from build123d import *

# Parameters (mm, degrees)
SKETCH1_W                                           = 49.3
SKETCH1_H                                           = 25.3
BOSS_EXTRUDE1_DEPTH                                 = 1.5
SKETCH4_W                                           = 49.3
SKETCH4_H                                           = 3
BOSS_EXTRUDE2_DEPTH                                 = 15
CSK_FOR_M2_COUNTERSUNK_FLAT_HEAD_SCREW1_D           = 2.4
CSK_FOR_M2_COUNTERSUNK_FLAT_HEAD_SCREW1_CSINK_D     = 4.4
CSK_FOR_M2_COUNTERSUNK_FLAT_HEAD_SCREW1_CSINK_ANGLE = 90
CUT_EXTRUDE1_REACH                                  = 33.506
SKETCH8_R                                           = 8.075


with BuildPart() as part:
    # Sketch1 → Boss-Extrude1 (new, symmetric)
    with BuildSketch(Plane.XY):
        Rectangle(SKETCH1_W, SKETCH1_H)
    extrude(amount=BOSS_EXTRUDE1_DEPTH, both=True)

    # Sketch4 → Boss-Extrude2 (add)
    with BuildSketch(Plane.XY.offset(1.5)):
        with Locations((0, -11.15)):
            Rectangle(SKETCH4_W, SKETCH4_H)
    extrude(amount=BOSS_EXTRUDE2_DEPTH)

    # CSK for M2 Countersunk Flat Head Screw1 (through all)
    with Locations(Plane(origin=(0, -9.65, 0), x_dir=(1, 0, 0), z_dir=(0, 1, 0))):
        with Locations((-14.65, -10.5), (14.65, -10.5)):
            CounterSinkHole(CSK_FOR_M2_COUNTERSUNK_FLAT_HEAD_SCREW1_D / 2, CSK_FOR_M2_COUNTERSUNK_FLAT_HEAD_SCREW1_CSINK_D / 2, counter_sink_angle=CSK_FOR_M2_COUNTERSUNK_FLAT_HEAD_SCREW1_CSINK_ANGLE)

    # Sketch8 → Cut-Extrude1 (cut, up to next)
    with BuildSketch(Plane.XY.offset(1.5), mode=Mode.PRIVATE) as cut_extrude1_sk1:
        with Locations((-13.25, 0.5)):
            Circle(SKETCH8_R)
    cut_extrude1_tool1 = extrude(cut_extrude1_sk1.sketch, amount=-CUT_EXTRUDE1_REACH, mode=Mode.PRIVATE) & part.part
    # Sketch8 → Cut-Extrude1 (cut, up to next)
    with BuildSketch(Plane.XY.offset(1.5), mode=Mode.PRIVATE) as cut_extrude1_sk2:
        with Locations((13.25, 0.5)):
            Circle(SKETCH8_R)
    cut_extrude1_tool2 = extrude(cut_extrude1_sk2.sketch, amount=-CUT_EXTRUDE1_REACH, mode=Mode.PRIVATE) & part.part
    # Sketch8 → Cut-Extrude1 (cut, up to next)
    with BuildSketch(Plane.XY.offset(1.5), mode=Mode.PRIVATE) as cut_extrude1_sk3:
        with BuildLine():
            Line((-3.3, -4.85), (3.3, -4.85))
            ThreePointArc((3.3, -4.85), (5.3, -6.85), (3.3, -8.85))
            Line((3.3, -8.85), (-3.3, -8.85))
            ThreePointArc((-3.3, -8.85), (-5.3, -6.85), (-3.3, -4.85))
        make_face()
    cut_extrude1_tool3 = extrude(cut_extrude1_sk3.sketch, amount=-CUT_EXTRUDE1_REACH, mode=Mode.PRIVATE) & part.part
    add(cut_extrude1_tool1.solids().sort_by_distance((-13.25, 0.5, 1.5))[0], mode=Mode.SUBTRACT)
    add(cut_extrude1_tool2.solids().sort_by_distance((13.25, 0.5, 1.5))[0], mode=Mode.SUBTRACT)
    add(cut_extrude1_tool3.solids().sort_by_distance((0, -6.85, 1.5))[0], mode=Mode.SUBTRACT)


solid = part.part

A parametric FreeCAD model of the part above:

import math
import FreeCAD as App
import Part
import Sketcher
from FreeCAD import Vector


def add_polygon(sketch, points):
    """Adds a closed chain of lines whose ends are joined by coincident constraints."""
    first, n = sketch.GeometryCount, len(points)
    for a, b in zip(points, points[1:] + points[:1]):
        sketch.addGeometry(Part.LineSegment(App.Vector(*a, 0), App.Vector(*b, 0)), False)
    for i in range(n):
        sketch.addConstraint(Sketcher.Constraint("Coincident", first + i, 2, first + (i + 1) % n, 1))

doc = App.newDocument("Part")
body = doc.addObject("PartDesign::Body", "Body")

sketch1 = doc.addObject("Sketcher::SketchObject", "Sketch")
body.addObject(sketch1)
sketch1.AttachmentSupport = (doc.XY_Plane, [""])
sketch1.MapMode = "FlatFace"
add_polygon(sketch1, [(-25, 13), (-25, -13), (25, -13), (25, 13)])
sketch1.addConstraint([
    Sketcher.Constraint("Vertical", 0),
    Sketcher.Constraint("Horizontal", 1),
    Sketcher.Constraint("Vertical", 2),
    Sketcher.Constraint("Horizontal", 3),
    Sketcher.Constraint("Symmetric", 0, 2, 2, 2, -1, 1),
    Sketcher.Constraint("DistanceX", 1, 1, 1, 2, 49.3),
    Sketcher.Constraint("DistanceY", 0, 2, 0, 1, 25.3),
])
pad1 = doc.addObject("PartDesign::Pad", "Pad")
body.addObject(pad1)
pad1.Profile = sketch1
pad1.Length = 3
pad1.Midplane = True

sketch2 = doc.addObject("Sketcher::SketchObject", "Sketch001")
body.addObject(sketch2)
sketch2.AttachmentSupport = (doc.XY_Plane, [""])
sketch2.MapMode = "FlatFace"
sketch2.AttachmentOffset = App.Placement(Vector(0, 0, 1.5), App.Rotation())
add_polygon(sketch2, [(-24.6, -9.7), (-24.6, -12.7), (24.6, -12.7), (24.6, -9.7)])
sketch2.addConstraint([
    Sketcher.Constraint("Vertical", 0),
    Sketcher.Constraint("Horizontal", 1),
    Sketcher.Constraint("Vertical", 2),
    Sketcher.Constraint("Horizontal", 3),
    Sketcher.Constraint("DistanceY", 0, 2, 0, 1, 3.0),
    Sketcher.Constraint("DistanceX", 1, 1, 1, 2, 49.3),
    Sketcher.Constraint("DistanceX", 0, 2, -1, 1, 24.65),
    Sketcher.Constraint("DistanceY", 0, 2, -1, 1, 12.65),
])
pad2 = doc.addObject("PartDesign::Pad", "Pad001")
body.addObject(pad2)
pad2.Profile = sketch2
pad2.Length = 15

sketch3 = doc.addObject("Sketcher::SketchObject", "Sketch002")
body.addObject(sketch3)
sketch3.AttachmentSupport = (doc.XZ_Plane, [""])
sketch3.MapMode = "FlatFace"
sketch3.AttachmentOffset = App.Placement(Vector(0, 0, 9.65), App.Rotation())
sketch3.addGeometry([
    Part.Circle(Vector(-14.7, 10.5, 0), Vector(0, 0, 1), 1.2),
    Part.Circle(Vector(14.7, 10.5, 0), Vector(0, 0, 1), 1.2),
], False)
sketch3.addConstraint([
    Sketcher.Constraint("Equal", 0, 1),
    Sketcher.Constraint("Symmetric", 0, 3, 1, 3, -2),
    Sketcher.Constraint("Diameter", 0, 2.4),
    Sketcher.Constraint("DistanceY", -1, 1, 0, 3, 10.5),
    Sketcher.Constraint("DistanceX", 0, 3, 1, 3, 29.3),
])
doc.recompute()
hole = doc.addObject("PartDesign::Hole", "Hole")
body.addObject(hole)
hole.Profile = sketch3
hole.ThreadType = "None"
hole.Diameter = 2.4
hole.DepthType = "ThroughAll"
hole.HoleCutType = "Countersink"
hole.HoleCutDiameter = 4.4
hole.HoleCutCountersinkAngle = 90
hole.Reversed = True

sketch4 = doc.addObject("Sketcher::SketchObject", "Sketch003")
body.addObject(sketch4)
sketch4.AttachmentSupport = (doc.XY_Plane, [""])
sketch4.MapMode = "FlatFace"
sketch4.AttachmentOffset = App.Placement(Vector(0, 0, 1.5), App.Rotation())
sketch4.addGeometry(Part.Circle(Vector(-13, 0, 0), Vector(0, 0, 1), 8), False)
sketch4.addConstraint([
    Sketcher.Constraint("Diameter", 0, 16.15),
    Sketcher.Constraint("DistanceY", -1, 1, 0, 3, 0.5),
    Sketcher.Constraint("DistanceX", 0, 3, -1, 1, 13.25),
])
pocket1 = doc.addObject("PartDesign::Pocket", "Pocket")
body.addObject(pocket1)
pocket1.Profile = sketch4
pocket1.Type = "UpToFirst"

sketch5 = doc.addObject("Sketcher::SketchObject", "Sketch004")
body.addObject(sketch5)
sketch5.AttachmentSupport = (doc.XY_Plane, [""])
sketch5.MapMode = "FlatFace"
sketch5.AttachmentOffset = App.Placement(Vector(0, 0, 1.5), App.Rotation())
sketch5.addGeometry(Part.Circle(Vector(13, 0, 0), Vector(0, 0, 1), 8), False)
sketch5.addConstraint([
    Sketcher.Constraint("Diameter", 0, 16.15),
    Sketcher.Constraint("DistanceY", -1, 1, 0, 3, 0.5),
    Sketcher.Constraint("DistanceX", -1, 1, 0, 3, 13.25),
])
pocket2 = doc.addObject("PartDesign::Pocket", "Pocket001")
body.addObject(pocket2)
pocket2.Profile = sketch5
pocket2.Type = "UpToFirst"

sketch6 = doc.addObject("Sketcher::SketchObject", "Sketch005")
body.addObject(sketch6)
sketch6.AttachmentSupport = (doc.XY_Plane, [""])
sketch6.MapMode = "FlatFace"
sketch6.AttachmentOffset = App.Placement(Vector(0, 0, 1.5), App.Rotation())
sketch6.addGeometry([
    Part.LineSegment(Vector(3.3, -4.8, 0), Vector(-3.3, -4.8, 0)),
    Part.ArcOfCircle(Part.Circle(Vector(-3.3, -6.8, 0), Vector(0, 0, 1), 2), math.radians(90), math.radians(270)),
    Part.LineSegment(Vector(-3.3, -8.8, 0), Vector(3.3, -8.8, 0)),
    Part.ArcOfCircle(Part.Circle(Vector(3.3, -6.8, 0), Vector(0, 0, 1), 2), math.radians(-90), math.radians(90)),
], False)
sketch6.addConstraint([
    Sketcher.Constraint("Tangent", 0, 2, 1, 1),
    Sketcher.Constraint("Tangent", 1, 2, 2, 1),
    Sketcher.Constraint("Tangent", 2, 2, 3, 1),
    Sketcher.Constraint("Tangent", 3, 2, 0, 1),
    Sketcher.Constraint("Horizontal", 0),
    Sketcher.Constraint("Horizontal", 2),
    Sketcher.Constraint("Radius", 1, 2.0),
    Sketcher.Constraint("DistanceX", 0, 2, 0, 1, 6.6),
    Sketcher.Constraint("DistanceX", 1, 3, -1, 1, 3.3),
    Sketcher.Constraint("DistanceY", 1, 3, -1, 1, 6.85),
])
pocket3 = doc.addObject("PartDesign::Pocket", "Pocket002")
body.addObject(pocket3)
pocket3.Profile = sketch6
pocket3.Type = "UpToFirst"

doc.recompute()
